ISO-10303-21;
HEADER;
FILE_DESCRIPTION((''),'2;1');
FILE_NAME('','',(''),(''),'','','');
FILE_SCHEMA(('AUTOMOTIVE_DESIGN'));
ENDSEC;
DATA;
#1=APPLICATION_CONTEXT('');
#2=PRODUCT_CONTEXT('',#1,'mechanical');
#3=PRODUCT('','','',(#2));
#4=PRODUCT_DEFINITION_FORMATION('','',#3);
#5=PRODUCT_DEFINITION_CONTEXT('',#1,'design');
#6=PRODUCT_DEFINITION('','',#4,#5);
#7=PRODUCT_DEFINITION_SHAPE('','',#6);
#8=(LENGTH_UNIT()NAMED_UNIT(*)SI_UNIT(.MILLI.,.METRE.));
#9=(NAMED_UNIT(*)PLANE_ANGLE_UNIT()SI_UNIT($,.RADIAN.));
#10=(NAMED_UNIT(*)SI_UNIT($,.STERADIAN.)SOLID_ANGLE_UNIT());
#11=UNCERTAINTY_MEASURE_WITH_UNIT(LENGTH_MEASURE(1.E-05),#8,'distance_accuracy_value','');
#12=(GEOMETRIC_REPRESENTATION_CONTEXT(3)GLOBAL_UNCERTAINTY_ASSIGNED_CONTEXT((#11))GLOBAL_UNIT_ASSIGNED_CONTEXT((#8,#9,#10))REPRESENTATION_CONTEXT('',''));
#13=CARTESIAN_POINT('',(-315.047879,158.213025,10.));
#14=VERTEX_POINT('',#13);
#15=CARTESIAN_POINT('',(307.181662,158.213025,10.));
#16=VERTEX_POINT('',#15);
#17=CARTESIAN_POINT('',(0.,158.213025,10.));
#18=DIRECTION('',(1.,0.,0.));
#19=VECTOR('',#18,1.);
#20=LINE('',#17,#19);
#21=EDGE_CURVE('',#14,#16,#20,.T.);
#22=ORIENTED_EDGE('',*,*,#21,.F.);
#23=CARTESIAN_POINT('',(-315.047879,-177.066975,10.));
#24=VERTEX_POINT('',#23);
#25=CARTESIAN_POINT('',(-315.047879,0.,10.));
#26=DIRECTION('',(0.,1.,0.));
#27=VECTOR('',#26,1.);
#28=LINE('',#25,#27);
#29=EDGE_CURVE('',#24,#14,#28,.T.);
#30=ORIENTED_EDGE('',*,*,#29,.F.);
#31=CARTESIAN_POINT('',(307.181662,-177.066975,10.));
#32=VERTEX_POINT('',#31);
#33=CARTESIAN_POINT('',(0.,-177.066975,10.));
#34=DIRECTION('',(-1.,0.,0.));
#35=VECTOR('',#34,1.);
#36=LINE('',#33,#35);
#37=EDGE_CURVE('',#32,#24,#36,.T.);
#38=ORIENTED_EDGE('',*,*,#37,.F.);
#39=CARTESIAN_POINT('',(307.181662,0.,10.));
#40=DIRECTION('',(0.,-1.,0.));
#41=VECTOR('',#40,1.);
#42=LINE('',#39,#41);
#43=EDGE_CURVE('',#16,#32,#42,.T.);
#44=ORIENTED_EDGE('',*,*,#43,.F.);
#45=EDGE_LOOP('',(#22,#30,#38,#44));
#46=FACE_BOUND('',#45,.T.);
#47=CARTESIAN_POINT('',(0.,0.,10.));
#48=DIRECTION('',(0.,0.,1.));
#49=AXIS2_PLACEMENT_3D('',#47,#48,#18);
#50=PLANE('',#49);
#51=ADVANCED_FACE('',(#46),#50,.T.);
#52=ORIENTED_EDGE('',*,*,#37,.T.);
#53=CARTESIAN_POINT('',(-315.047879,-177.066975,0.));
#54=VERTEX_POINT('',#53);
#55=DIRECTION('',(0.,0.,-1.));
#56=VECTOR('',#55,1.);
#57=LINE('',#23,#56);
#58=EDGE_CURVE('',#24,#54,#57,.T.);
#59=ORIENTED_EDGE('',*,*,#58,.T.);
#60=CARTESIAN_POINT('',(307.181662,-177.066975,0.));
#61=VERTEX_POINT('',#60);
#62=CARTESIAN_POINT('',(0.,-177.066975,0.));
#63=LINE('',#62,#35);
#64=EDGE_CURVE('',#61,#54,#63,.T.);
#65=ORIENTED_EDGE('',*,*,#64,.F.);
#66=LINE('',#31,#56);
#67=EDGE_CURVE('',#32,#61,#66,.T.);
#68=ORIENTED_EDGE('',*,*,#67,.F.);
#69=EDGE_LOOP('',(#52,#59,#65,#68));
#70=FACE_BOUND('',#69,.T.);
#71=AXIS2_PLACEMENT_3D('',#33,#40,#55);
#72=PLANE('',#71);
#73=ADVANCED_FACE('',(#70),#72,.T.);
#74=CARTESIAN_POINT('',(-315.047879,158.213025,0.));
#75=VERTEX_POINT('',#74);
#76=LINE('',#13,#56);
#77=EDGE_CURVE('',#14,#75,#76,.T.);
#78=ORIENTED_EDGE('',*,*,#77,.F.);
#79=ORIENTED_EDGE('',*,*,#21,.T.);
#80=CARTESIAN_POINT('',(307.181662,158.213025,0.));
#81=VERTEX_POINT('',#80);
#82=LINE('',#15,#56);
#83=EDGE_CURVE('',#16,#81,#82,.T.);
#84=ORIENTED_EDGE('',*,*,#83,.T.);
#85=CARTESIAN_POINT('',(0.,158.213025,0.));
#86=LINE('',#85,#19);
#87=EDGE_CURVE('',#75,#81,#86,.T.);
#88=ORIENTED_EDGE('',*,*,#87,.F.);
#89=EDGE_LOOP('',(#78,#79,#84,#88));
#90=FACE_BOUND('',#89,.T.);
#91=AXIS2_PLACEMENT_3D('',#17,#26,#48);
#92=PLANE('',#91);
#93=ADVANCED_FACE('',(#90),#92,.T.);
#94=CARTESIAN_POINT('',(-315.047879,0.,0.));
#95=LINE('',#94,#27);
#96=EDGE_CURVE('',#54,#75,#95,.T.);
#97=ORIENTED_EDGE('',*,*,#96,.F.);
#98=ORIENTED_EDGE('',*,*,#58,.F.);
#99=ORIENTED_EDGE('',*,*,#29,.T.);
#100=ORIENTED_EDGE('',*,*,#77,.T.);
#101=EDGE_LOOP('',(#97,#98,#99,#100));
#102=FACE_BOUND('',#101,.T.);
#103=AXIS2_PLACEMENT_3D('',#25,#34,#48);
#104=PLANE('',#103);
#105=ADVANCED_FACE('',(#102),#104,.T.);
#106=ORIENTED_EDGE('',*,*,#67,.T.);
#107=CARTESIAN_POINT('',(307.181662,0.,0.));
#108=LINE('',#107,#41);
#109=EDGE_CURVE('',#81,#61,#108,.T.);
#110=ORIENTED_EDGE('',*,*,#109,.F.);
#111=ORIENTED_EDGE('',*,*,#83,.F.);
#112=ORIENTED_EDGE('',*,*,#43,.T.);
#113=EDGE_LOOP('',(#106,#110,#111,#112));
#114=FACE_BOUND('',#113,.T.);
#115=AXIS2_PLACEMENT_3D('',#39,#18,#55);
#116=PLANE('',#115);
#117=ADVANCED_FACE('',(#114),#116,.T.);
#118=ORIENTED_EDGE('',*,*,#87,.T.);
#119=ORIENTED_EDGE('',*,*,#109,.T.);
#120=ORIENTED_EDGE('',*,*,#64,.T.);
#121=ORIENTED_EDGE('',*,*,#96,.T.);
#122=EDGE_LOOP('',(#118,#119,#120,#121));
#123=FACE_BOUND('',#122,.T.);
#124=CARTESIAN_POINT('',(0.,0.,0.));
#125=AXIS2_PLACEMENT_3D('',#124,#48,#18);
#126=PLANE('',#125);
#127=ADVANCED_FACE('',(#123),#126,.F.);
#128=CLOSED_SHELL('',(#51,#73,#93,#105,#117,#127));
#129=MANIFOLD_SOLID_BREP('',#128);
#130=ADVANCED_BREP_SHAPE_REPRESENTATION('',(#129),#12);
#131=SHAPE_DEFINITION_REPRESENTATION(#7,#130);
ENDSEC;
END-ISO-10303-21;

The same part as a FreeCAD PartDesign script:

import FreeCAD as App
import Part
import Sketcher

V = App.Vector


def add_polygon(sketch, points):
    """Adds a closed chain of lines whose ends are joined by coincident constraints."""
    first, n = sketch.GeometryCount, len(points)
    for a, b in zip(points, points[1:] + points[:1]):
        sketch.addGeometry(Part.LineSegment(App.Vector(*a, 0), App.Vector(*b, 0)), False)
    for i in range(n):
        sketch.addConstraint(Sketcher.Constraint("Coincident", first + i, 2, first + (i + 1) % n, 1))

doc = App.newDocument("Part")
body = doc.addObject("PartDesign::Body", "Body")

# Sketch on XY plane
sketch1 = doc.addObject("Sketcher::SketchObject", "Sketch")
body.addObject(sketch1)
sketch1.AttachmentSupport = (doc.XY_Plane, [""])
sketch1.MapMode = "FlatFace"
add_polygon(sketch1, [(-315, 158), (-315, -177), (307, -177), (307, 158)])  # lines 0-3
sketch1.addConstraint([
    Sketcher.Constraint("Vertical", 0),
    Sketcher.Constraint("Horizontal", 1),
    Sketcher.Constraint("Vertical", 2),
    Sketcher.Constraint("Horizontal", 3),
    Sketcher.Constraint("DistanceY", 0, 2, 0, 1, 335.28),
    Sketcher.Constraint("DistanceX", 1, 1, 1, 2, 622.229542),
    Sketcher.Constraint("DistanceX", 0, 2, -1, 1, 315.047879),
    Sketcher.Constraint("DistanceY", 0, 2, -1, 1, 177.066975),
])
pad1 = doc.addObject("PartDesign::Pad", "Pad")
body.addObject(pad1)
pad1.Profile = sketch1
pad1.Length = 10

doc.recompute()
